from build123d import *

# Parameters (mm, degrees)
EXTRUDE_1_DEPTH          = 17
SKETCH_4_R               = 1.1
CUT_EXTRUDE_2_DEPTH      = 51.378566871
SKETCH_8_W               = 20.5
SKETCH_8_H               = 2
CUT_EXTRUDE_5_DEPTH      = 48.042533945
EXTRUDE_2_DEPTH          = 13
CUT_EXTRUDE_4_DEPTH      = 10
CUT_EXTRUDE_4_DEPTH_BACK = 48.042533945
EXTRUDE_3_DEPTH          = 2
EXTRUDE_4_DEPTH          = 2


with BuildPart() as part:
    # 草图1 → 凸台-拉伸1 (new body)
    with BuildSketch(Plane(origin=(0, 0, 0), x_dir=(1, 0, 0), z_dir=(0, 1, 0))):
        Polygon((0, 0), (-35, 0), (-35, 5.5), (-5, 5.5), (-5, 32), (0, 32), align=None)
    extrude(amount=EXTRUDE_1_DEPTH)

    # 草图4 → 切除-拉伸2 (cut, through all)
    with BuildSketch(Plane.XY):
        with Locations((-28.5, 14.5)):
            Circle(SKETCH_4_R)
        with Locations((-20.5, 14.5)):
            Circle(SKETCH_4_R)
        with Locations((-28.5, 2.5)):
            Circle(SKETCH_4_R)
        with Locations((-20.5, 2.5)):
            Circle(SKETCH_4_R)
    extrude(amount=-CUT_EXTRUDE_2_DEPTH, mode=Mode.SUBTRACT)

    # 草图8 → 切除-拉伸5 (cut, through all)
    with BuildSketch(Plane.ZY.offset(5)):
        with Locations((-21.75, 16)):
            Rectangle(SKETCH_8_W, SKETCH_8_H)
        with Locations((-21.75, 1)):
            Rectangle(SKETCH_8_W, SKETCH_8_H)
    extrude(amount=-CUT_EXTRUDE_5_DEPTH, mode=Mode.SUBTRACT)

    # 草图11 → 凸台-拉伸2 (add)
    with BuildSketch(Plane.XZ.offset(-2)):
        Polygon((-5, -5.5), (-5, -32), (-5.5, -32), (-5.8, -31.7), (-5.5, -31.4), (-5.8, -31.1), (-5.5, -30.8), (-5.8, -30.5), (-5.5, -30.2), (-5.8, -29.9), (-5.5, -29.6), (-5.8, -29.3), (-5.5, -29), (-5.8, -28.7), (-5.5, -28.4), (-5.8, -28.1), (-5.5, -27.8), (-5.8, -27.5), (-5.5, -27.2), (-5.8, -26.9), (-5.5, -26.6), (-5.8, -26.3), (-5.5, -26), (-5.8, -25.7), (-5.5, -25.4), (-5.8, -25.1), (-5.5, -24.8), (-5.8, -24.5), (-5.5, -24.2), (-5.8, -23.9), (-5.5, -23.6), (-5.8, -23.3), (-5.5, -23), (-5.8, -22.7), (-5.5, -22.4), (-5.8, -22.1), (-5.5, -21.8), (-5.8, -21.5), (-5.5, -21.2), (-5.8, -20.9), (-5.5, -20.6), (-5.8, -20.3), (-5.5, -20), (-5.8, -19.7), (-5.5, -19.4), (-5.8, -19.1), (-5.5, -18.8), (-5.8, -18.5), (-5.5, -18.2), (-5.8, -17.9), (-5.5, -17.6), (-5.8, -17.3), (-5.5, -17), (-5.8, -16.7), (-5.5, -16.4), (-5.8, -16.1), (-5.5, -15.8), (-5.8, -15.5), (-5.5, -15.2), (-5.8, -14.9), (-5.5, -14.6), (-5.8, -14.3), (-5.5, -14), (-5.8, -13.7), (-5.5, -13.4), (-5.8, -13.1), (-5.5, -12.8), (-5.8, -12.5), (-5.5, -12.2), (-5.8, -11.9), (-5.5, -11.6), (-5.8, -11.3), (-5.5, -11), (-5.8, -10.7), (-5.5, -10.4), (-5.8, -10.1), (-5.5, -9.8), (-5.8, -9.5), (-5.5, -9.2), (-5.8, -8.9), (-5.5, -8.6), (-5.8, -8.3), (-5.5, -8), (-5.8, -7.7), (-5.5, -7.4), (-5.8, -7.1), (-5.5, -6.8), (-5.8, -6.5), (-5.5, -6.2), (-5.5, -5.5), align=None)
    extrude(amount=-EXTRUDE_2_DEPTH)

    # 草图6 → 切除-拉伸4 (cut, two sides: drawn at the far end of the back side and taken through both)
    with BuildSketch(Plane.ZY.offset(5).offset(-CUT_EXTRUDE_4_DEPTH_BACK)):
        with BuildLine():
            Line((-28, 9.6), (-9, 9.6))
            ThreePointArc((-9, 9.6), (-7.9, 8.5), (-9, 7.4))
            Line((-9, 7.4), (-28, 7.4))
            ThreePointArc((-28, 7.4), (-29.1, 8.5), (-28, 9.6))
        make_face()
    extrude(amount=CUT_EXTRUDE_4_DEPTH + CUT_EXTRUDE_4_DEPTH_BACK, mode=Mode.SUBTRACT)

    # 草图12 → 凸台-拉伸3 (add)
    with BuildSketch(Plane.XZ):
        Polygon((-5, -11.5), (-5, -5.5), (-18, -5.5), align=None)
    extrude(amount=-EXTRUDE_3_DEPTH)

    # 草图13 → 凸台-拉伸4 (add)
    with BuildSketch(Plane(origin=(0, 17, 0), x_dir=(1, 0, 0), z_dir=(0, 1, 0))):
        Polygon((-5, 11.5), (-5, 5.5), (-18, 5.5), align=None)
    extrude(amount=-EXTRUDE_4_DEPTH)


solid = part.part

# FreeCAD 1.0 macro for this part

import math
import FreeCAD as App
import Part
import Sketcher
from FreeCAD import Vector


def add_polygon(sketch, points):
    """Adds a closed chain of lines whose ends are joined by coincident constraints."""
    first, n = sketch.GeometryCount, len(points)
    for a, b in zip(points, points[1:] + points[:1]):
        sketch.addGeometry(Part.LineSegment(App.Vector(*a, 0), App.Vector(*b, 0)), False)
    for i in range(n):
        sketch.addConstraint(Sketcher.Constraint("Coincident", first + i, 2, first + (i + 1) % n, 1))

doc = App.newDocument("Part")
params = doc.addObject("Spreadsheet::Sheet", "Params")
for row, (alias, value) in enumerate([
    ("sketch1_width", "35 mm"),
    ("sketch1_width2", "5 mm"),
    ("sketch1_height", "32 mm"),
    ("sketch1_height2", "26.5 mm"),
    ("pad1_length", "17 mm"),
    ("sketch2_diameter", "2.2 mm"),
    ("sketch3_width", "2 mm"),
    ("sketch3_height", "20.5 mm"),
    ("sketch4_width", "0.5 mm"),
    ("sketch4_height", "26.5 mm"),
    ("sketch4_height2", "0.7 mm"),
    ("pad2_length", "13 mm"),
    ("sketch5_radius", "1.1 mm"),
    ("sketch5_height", "19 mm"),
    ("sketch6_width", "13 mm"),
    ("sketch6_height", "6 mm"),
    ("pad3_length", "2 mm"),
    ("sketch7_width", "13 mm"),
    ("sketch7_height", "6 mm"),
    ("pad4_length", "2 mm"),
], start=1):
    params.set(f"A{row}", alias)
    params.set(f"B{row}", "=" + value)
    params.setAlias(f"B{row}", alias)

body = doc.addObject("PartDesign::Body", "Body")

# Sketch on XZ plane
sketch1 = doc.addObject("Sketcher::SketchObject", "Sketch")
body.addObject(sketch1)
sketch1.AttachmentSupport = (doc.XZ_Plane, [""])
sketch1.MapMode = "FlatFace"
add_polygon(sketch1, [(-35, 0), (0, 0), (0, -32), (-5, -32), (-5, -6), (-35, -6)])  # lines 0-5
sketch1.addConstraint([
    Sketcher.Constraint("Horizontal", 0),
    Sketcher.Constraint("Vertical", 1),
    Sketcher.Constraint("Horizontal", 2),
    Sketcher.Constraint("Vertical", 3),
    Sketcher.Constraint("Horizontal", 4),
    Sketcher.Constraint("Vertical", 5),
    Sketcher.Constraint("Coincident", 0, 2, -1, 1),
    Sketcher.Constraint("DistanceX", 0, 1, 0, 2, 35.0),
    Sketcher.Constraint("DistanceX", 2, 2, 2, 1, 5.0),
    Sketcher.Constraint("DistanceY", 1, 2, 1, 1, 32.0),
    Sketcher.Constraint("DistanceY", 3, 1, 3, 2, 26.5),
])
sketch1.setExpression("Constraints[13]", "Params.sketch1_width")
sketch1.setExpression("Constraints[14]", "Params.sketch1_width2")
sketch1.setExpression("Constraints[15]", "Params.sketch1_height")
sketch1.setExpression("Constraints[16]", "Params.sketch1_height2")
pad1 = doc.addObject("PartDesign::Pad", "Pad")
body.addObject(pad1)
pad1.Profile = sketch1
pad1.setExpression("Length", "Params.pad1_length")
pad1.Reversed = True

# Sketch on XY plane
sketch2 = doc.addObject("Sketcher::SketchObject", "Sketch001")
body.addObject(sketch2)
sketch2.AttachmentSupport = (doc.XY_Plane, [""])
sketch2.MapMode = "FlatFace"
sketch2.addGeometry([
    Part.Circle(Vector(-28.5, 14.5, 0), Vector(0, 0, 1), 1.1),
    Part.Circle(Vector(-20.5, 14.5, 0), Vector(0, 0, 1), 1.1),
    Part.Circle(Vector(-28.5, 2.5, 0), Vector(0, 0, 1), 1.1),
    Part.Circle(Vector(-20.5, 2.5, 0), Vector(0, 0, 1), 1.1),
], False)
sketch2.addConstraint([
    Sketcher.Constraint("Equal", 0, 1),
    Sketcher.Constraint("Equal", 1, 2),
    Sketcher.Constraint("Equal", 2, 3),
    Sketcher.Constraint("Horizontal", 0, 3, 1, 3),
    Sketcher.Constraint("Horizontal", 2, 3, 3, 3),
    Sketcher.Constraint("Vertical", 0, 3, 2, 3),
    Sketcher.Constraint("Vertical", 1, 3, 3, 3),
    Sketcher.Constraint("Diameter", 0, 2.2),
    Sketcher.Constraint("DistanceX", 0, 3, 1, 3, 8.0),
    Sketcher.Constraint("DistanceY", 2, 3, 0, 3, 12.0),
    Sketcher.Constraint("DistanceX", 0, 3, -1, 1, 28.5),
    Sketcher.Constraint("DistanceY", -1, 1, 0, 3, 14.5),
])
sketch2.setExpression("Constraints[7]", "Params.sketch2_diameter")
pocket1 = doc.addObject("PartDesign::Pocket", "Pocket")
body.addObject(pocket1)
pocket1.Profile = sketch2
pocket1.Type = "ThroughAll"

# Sketch on YZ plane
sketch3 = doc.addObject("Sketcher::SketchObject", "Sketch002")
body.addObject(sketch3)
sketch3.AttachmentSupport = (doc.YZ_Plane, [""])
sketch3.MapMode = "FlatFace"
sketch3.AttachmentOffset = App.Placement(Vector(0, 0, -5), App.Rotation())
add_polygon(sketch3, [(17, -32), (15, -32), (15, -11.5), (17, -11.5)])  # lines 0-3
add_polygon(sketch3, [(2, -32), (0, -32), (0, -11.5), (2, -11.5)])  # lines 4-7
sketch3.addConstraint([
    Sketcher.Constraint("Horizontal", 0),
    Sketcher.Constraint("Vertical", 1),
    Sketcher.Constraint("Horizontal", 2),
    Sketcher.Constraint("Vertical", 3),
    Sketcher.Constraint("Horizontal", 4),
    Sketcher.Constraint("Vertical", 5),
    Sketcher.Constraint("Horizontal", 6),
    Sketcher.Constraint("Vertical", 7),
    Sketcher.Constraint("PointOnObject", 4, 2, -2),
    Sketcher.Constraint("Horizontal", 3, 2, 4, 2),
    Sketcher.Constraint("Horizontal", 2, 2, 5, 2),
    Sketcher.Constraint("Equal", 2, 4),
    Sketcher.Constraint("DistanceX", 0, 2, 0, 1, 2.0),
    Sketcher.Constraint("DistanceY", 1, 1, 1, 2, 20.5),
    Sketcher.Constraint("DistanceX", -1, 1, 0, 2, 15.0),
    Sketcher.Constraint("DistanceY", 0, 2, -1, 1, 32.0),
])
sketch3.setExpression("Constraints[20]", "Params.sketch3_width")
sketch3.setExpression("Constraints[21]", "Params.sketch3_height")
pocket2 = doc.addObject("PartDesign::Pocket", "Pocket001")
body.addObject(pocket2)
pocket2.Profile = sketch3
pocket2.Type = "ThroughAll"
pocket2.Reversed = True

# Sketch on XZ plane
sketch4 = doc.addObject("Sketcher::SketchObject", "Sketch003")
body.addObject(sketch4)
sketch4.AttachmentSupport = (doc.XZ_Plane, [""])
sketch4.MapMode = "FlatFace"
sketch4.AttachmentOffset = App.Placement(Vector(0, 0, -2), App.Rotation())
add_polygon(sketch4, [(-5, -32), (-5, -5.5), (-5.5, -5.5), (-5.5, -6.2), (-5.8, -6.5), (-5.5, -6.8), (-5.8, -7.1), (-5.5, -7.4), (-5.8, -7.7), (-5.5, -8), (-5.8, -8.3), (-5.5, -8.6), (-5.8, -8.9), (-5.5, -9.2), (-5.8, -9.5), (-5.5, -9.8), (-5.8, -10.1), (-5.5, -10.4), (-5.8, -10.7), (-5.5, -11), (-5.8, -11.3), (-5.5, -11.6), (-5.8, -11.9), (-5.5, -12.2), (-5.8, -12.5), (-5.5, -12.8), (-5.8, -13.1), (-5.5, -13.4), (-5.8, -13.7), (-5.5, -14), (-5.8, -14.3), (-5.5, -14.6), (-5.8, -14.9), (-5.5, -15.2), (-5.8, -15.5), (-5.5, -15.8), (-5.8, -16.1), (-5.5, -16.4), (-5.8, -16.7), (-5.5, -17), (-5.8, -17.3), (-5.5, -17.6), (-5.8, -17.9), (-5.5, -18.2), (-5.8, -18.5), (-5.5, -18.8), (-5.8, -19.1), (-5.5, -19.4), (-5.8, -19.7), (-5.5, -20), (-5.8, -20.3), (-5.5, -20.6), (-5.8, -20.9), (-5.5, -21.2), (-5.8, -21.5), (-5.5, -21.8), (-5.8, -22.1), (-5.5, -22.4), (-5.8, -22.7), (-5.5, -23), (-5.8, -23.3), (-5.5, -23.6), (-5.8, -23.9), (-5.5, -24.2), (-5.8, -24.5), (-5.5, -24.8), (-5.8, -25.1), (-5.5, -25.4), (-5.8, -25.7), (-5.5, -26), (-5.8, -26.3), (-5.5, -26.6), (-5.8, -26.9), (-5.5, -27.2), (-5.8, -27.5), (-5.5, -27.8), (-5.8, -28.1), (-5.5, -28.4), (-5.8, -28.7), (-5.5, -29), (-5.8, -29.3), (-5.5, -29.6), (-5.8, -29.9), (-5.5, -30.2), (-5.8, -30.5), (-5.5, -30.8), (-5.8, -31.1), (-5.5, -31.4), (-5.8, -31.7), (-5.5, -32)])  # lines 0-89
sketch4.addConstraint([
    Sketcher.Constraint("Vertical", 0),
    Sketcher.Constraint("Horizontal", 1),
    Sketcher.Constraint("Vertical", 2),
    Sketcher.Constraint("Horizontal", 89),
    Sketcher.Constraint("Perpendicular", 3, 4),
    Sketcher.Constraint("Perpendicular", 4, 5),
    Sketcher.Constraint("Perpendicular", 5, 6),
    Sketcher.Constraint("Perpendicular", 6, 7),
    Sketcher.Constraint("Perpendicular", 7, 8),
    Sketcher.Constraint("Perpendicular", 8, 9),
    Sketcher.Constraint("Perpendicular", 9, 10),
    Sketcher.Constraint("Perpendicular", 10, 11),
    Sketcher.Constraint("Perpendicular", 11, 12),
    Sketcher.Constraint("Perpendicular", 12, 13),
    Sketcher.Constraint("Perpendicular", 13, 14),
    Sketcher.Constraint("Perpendicular", 14, 15),
    Sketcher.Constraint("Perpendicular", 15, 16),
    Sketcher.Constraint("Perpendicular", 16, 17),
    Sketcher.Constraint("Perpendicular", 17, 18),
    Sketcher.Constraint("Perpendicular", 18, 19),
    Sketcher.Constraint("Perpendicular", 19, 20),
    Sketcher.Constraint("Perpendicular", 20, 21),
    Sketcher.Constraint("Perpendicular", 21, 22),
    Sketcher.Constraint("Perpendicular", 22, 23),
    Sketcher.Constraint("Perpendicular", 23, 24),
    Sketcher.Constraint("Perpendicular", 24, 25),
    Sketcher.Constraint("Perpendicular", 25, 26),
    Sketcher.Constraint("Perpendicular", 26, 27),
    Sketcher.Constraint("Perpendicular", 27, 28),
    Sketcher.Constraint("Perpendicular", 28, 29),
    Sketcher.Constraint("Perpendicular", 29, 30),
    Sketcher.Constraint("Perpendicular", 30, 31),
    Sketcher.Constraint("Perpendicular", 31, 32),
    Sketcher.Constraint("Perpendicular", 32, 33),
    Sketcher.Constraint("Perpendicular", 33, 34),
    Sketcher.Constraint("Perpendicular", 34, 35),
    Sketcher.Constraint("Perpendicular", 35, 36),
    Sketcher.Constraint("Perpendicular", 36, 37),
    Sketcher.Constraint("Perpendicular", 37, 38),
    Sketcher.Constraint("Perpendicular", 38, 39),
    Sketcher.Constraint("Perpendicular", 39, 40),
    Sketcher.Constraint("Perpendicular", 40, 41),
    Sketcher.Constraint("Perpendicular", 41, 42),
    Sketcher.Constraint("Perpendicular", 42, 43),
    Sketcher.Constraint("Perpendicular", 43, 44),
    Sketcher.Constraint("Perpendicular", 44, 45),
    Sketcher.Constraint("Perpendicular", 45, 46),
    Sketcher.Constraint("Perpendicular", 46, 47),
    Sketcher.Constraint("Perpendicular", 47, 48),
    Sketcher.Constraint("Perpendicular", 48, 49),
    Sketcher.Constraint("Perpendicular", 49, 50),
    Sketcher.Constraint("Perpendicular", 50, 51),
    Sketcher.Constraint("Perpendicular", 51, 52),
    Sketcher.Constraint("Perpendicular", 52, 53),
    Sketcher.Constraint("Perpendicular", 53, 54),
    Sketcher.Constraint("Perpendicular", 54, 55),
    Sketcher.Constraint("Perpendicular", 55, 56),
    Sketcher.Constraint("Perpendicular", 56, 57),
    Sketcher.Constraint("Perpendicular", 57, 58),
    Sketcher.Constraint("Perpendicular", 58, 59),
    Sketcher.Constraint("Perpendicular", 59, 60),
    Sketcher.Constraint("Perpendicular", 60, 61),
    Sketcher.Constraint("Perpendicular", 61, 62),
    Sketcher.Constraint("Perpendicular", 62, 63),
    Sketcher.Constraint("Perpendicular", 63, 64),
    Sketcher.Constraint("Perpendicular", 64, 65),
    Sketcher.Constraint("Perpendicular", 65, 66),
    Sketcher.Constraint("Perpendicular", 66, 67),
    Sketcher.Constraint("Perpendicular", 67, 68),
    Sketcher.Constraint("Perpendicular", 68, 69),
    Sketcher.Constraint("Perpendicular", 69, 70),
    Sketcher.Constraint("Perpendicular", 70, 71),
    Sketcher.Constraint("Perpendicular", 71, 72),
    Sketcher.Constraint("Perpendicular", 72, 73),
    Sketcher.Constraint("Perpendicular", 73, 74),
    Sketcher.Constraint("Perpendicular", 74, 75),
    Sketcher.Constraint("Perpendicular", 75, 76),
    Sketcher.Constraint("Perpendicular", 76, 77),
    Sketcher.Constraint("Perpendicular", 77, 78),
    Sketcher.Constraint("Perpendicular", 78, 79),
    Sketcher.Constraint("Perpendicular", 79, 80),
    Sketcher.Constraint("Perpendicular", 80, 81),
    Sketcher.Constraint("Perpendicular", 81, 82),
    Sketcher.Constraint("Perpendicular", 82, 83),
    Sketcher.Constraint("Perpendicular", 83, 84),
    Sketcher.Constraint("Perpendicular", 84, 85),
    Sketcher.Constraint("Perpendicular", 85, 86),
    Sketcher.Constraint("Perpendicular", 86, 87),
    Sketcher.Constraint("Perpendicular", 87, 88),
    Sketcher.Constraint("Vertical", 2, 2, 4, 2),
    Sketcher.Constraint("Vertical", 3, 2, 5, 2),
    Sketcher.Constraint("Vertical", 4, 2, 6, 2),
    Sketcher.Constraint("Vertical", 5, 2, 7, 2),
    Sketcher.Constraint("Vertical", 6, 2, 8, 2),
    Sketcher.Constraint("Vertical", 7, 2, 9, 2),
    Sketcher.Constraint("Vertical", 8, 2, 10, 2),
    Sketcher.Constraint("Vertical", 9, 2, 11, 2),
    Sketcher.Constraint("Vertical", 10, 2, 12, 2),
    Sketcher.Constraint("Vertical", 11, 2, 13, 2),
    Sketcher.Constraint("Vertical", 12, 2, 14, 2),
    Sketcher.Constraint("Vertical", 13, 2, 15, 2),
    Sketcher.Constraint("Vertical", 14, 2, 16, 2),
    Sketcher.Constraint("Vertical", 15, 2, 17, 2),
    Sketcher.Constraint("Vertical", 16, 2, 18, 2),
    Sketcher.Constraint("Vertical", 17, 2, 19, 2),
    Sketcher.Constraint("Vertical", 18, 2, 20, 2),
    Sketcher.Constraint("Vertical", 19, 2, 21, 2),
    Sketcher.Constraint("Vertical", 20, 2, 22, 2),
    Sketcher.Constraint("Vertical", 21, 2, 23, 2),
    Sketcher.Constraint("Vertical", 22, 2, 24, 2),
    Sketcher.Constraint("Vertical", 23, 2, 25, 2),
    Sketcher.Constraint("Vertical", 24, 2, 26, 2),
    Sketcher.Constraint("Vertical", 25, 2, 27, 2),
    Sketcher.Constraint("Vertical", 26, 2, 28, 2),
    Sketcher.Constraint("Vertical", 27, 2, 29, 2),
    Sketcher.Constraint("Vertical", 28, 2, 30, 2),
    Sketcher.Constraint("Vertical", 29, 2, 31, 2),
    Sketcher.Constraint("Vertical", 30, 2, 32, 2),
    Sketcher.Constraint("Vertical", 31, 2, 33, 2),
    Sketcher.Constraint("Vertical", 32, 2, 34, 2),
    Sketcher.Constraint("Vertical", 33, 2, 35, 2),
    Sketcher.Constraint("Vertical", 34, 2, 36, 2),
    Sketcher.Constraint("Vertical", 35, 2, 37, 2),
    Sketcher.Constraint("Vertical", 36, 2, 38, 2),
    Sketcher.Constraint("Vertical", 37, 2, 39, 2),
    Sketcher.Constraint("Vertical", 38, 2, 40, 2),
    Sketcher.Constraint("Vertical", 39, 2, 41, 2),
    Sketcher.Constraint("Vertical", 40, 2, 42, 2),
    Sketcher.Constraint("Vertical", 41, 2, 43, 2),
    Sketcher.Constraint("Vertical", 42, 2, 44, 2),
    Sketcher.Constraint("Vertical", 43, 2, 45, 2),
    Sketcher.Constraint("Vertical", 44, 2, 46, 2),
    Sketcher.Constraint("Vertical", 45, 2, 47, 2),
    Sketcher.Constraint("Vertical", 46, 2, 48, 2),
    Sketcher.Constraint("Vertical", 47, 2, 49, 2),
    Sketcher.Constraint("Vertical", 48, 2, 50, 2),
    Sketcher.Constraint("Vertical", 49, 2, 51, 2),
    Sketcher.Constraint("Vertical", 50, 2, 52, 2),
    Sketcher.Constraint("Vertical", 51, 2, 53, 2),
    Sketcher.Constraint("Vertical", 52, 2, 54, 2),
    Sketcher.Constraint("Vertical", 53, 2, 55, 2),
    Sketcher.Constraint("Vertical", 54, 2, 56, 2),
    Sketcher.Constraint("Vertical", 55, 2, 57, 2),
    Sketcher.Constraint("Vertical", 56, 2, 58, 2),
    Sketcher.Constraint("Vertical", 57, 2, 59, 2),
    Sketcher.Constraint("Vertical", 58, 2, 60, 2),
    Sketcher.Constraint("Vertical", 59, 2, 61, 2),
    Sketcher.Constraint("Vertical", 60, 2, 62, 2),
    Sketcher.Constraint("Vertical", 61, 2, 63, 2),
    Sketcher.Constraint("Vertical", 62, 2, 64, 2),
    Sketcher.Constraint("Vertical", 63, 2, 65, 2),
    Sketcher.Constraint("Vertical", 64, 2, 66, 2),
    Sketcher.Constraint("Vertical", 65, 2, 67, 2),
    Sketcher.Constraint("Vertical", 66, 2, 68, 2),
    Sketcher.Constraint("Vertical", 67, 2, 69, 2),
    Sketcher.Constraint("Vertical", 68, 2, 70, 2),
    Sketcher.Constraint("Vertical", 69, 2, 71, 2),
    Sketcher.Constraint("Vertical", 70, 2, 72, 2),
    Sketcher.Constraint("Vertical", 71, 2, 73, 2),
    Sketcher.Constraint("Vertical", 72, 2, 74, 2),
    Sketcher.Constraint("Vertical", 73, 2, 75, 2),
    Sketcher.Constraint("Vertical", 74, 2, 76, 2),
    Sketcher.Constraint("Vertical", 75, 2, 77, 2),
    Sketcher.Constraint("Vertical", 76, 2, 78, 2),
    Sketcher.Constraint("Vertical", 77, 2, 79, 2),
    Sketcher.Constraint("Vertical", 78, 2, 80, 2),
    Sketcher.Constraint("Vertical", 79, 2, 81, 2),
    Sketcher.Constraint("Vertical", 80, 2, 82, 2),
    Sketcher.Constraint("Vertical", 81, 2, 83, 2),
    Sketcher.Constraint("Vertical", 82, 2, 84, 2),
    Sketcher.Constraint("Vertical", 83, 2, 85, 2),
    Sketcher.Constraint("Vertical", 84, 2, 86, 2),
    Sketcher.Constraint("Vertical", 85, 2, 87, 2),
    Sketcher.Constraint("Vertical", 86, 2, 88, 2),
    Sketcher.Constraint("Equal", 3, 4),
    Sketcher.Constraint("DistanceX", 1, 2, 1, 1, 0.5),
    Sketcher.Constraint("DistanceY", 0, 1, 0, 2, 26.5),
    Sketcher.Constraint("DistanceY", 2, 2, 2, 1, 0.7),
    Sketcher.Constraint("DistanceX", 0, 2, -1, 1, 5.0),
    Sketcher.Constraint("DistanceY", 8, 2, -1, 1, 8.0),
])
sketch4.setExpression("Constraints[265]", "Params.sketch4_width")
sketch4.setExpression("Constraints[266]", "Params.sketch4_height")
sketch4.setExpression("Constraints[267]", "Params.sketch4_height2")
pad2 = doc.addObject("PartDesign::Pad", "Pad001")
body.addObject(pad2)
pad2.Profile = sketch4
pad2.setExpression("Length", "Params.pad2_length")
pad2.Reversed = True

# Sketch on YZ plane
sketch5 = doc.addObject("Sketcher::SketchObject", "Sketch004")
body.addObject(sketch5)
sketch5.AttachmentSupport = (doc.YZ_Plane, [""])
sketch5.MapMode = "FlatFace"
sketch5.AttachmentOffset = App.Placement(Vector(0, 0, -5), App.Rotation())
sketch5.addGeometry([
    Part.LineSegment(Vector(9.6, -9, 0), Vector(9.6, -28, 0)),
    Part.ArcOfCircle(Part.Circle(Vector(8.5, -28, 0), Vector(0, 0, 1), 1.1), math.radians(180), math.radians(360)),
    Part.LineSegment(Vector(7.4, -28, 0), Vector(7.4, -9, 0)),
    Part.ArcOfCircle(Part.Circle(Vector(8.5, -9, 0), Vector(0, 0, 1), 1.1), math.radians(0), math.radians(180)),
], False)
sketch5.addConstraint([
    Sketcher.Constraint("Tangent", 0, 2, 1, 2),
    Sketcher.Constraint("Tangent", 1, 1, 2, 1),
    Sketcher.Constraint("Tangent", 2, 2, 3, 2),
    Sketcher.Constraint("Tangent", 3, 1, 0, 1),
    Sketcher.Constraint("Vertical", 0),
    Sketcher.Constraint("Vertical", 2),
    Sketcher.Constraint("Radius", 1, 1.1),
    Sketcher.Constraint("DistanceY", 0, 2, 0, 1, 19.0),
    Sketcher.Constraint("DistanceY", 1, 3, -1, 1, 28.0),
    Sketcher.Constraint("DistanceX", -1, 1, 1, 3, 8.5),
])
sketch5.setExpression("Constraints[6]", "Params.sketch5_radius")
sketch5.setExpression("Constraints[7]", "Params.sketch5_height")
pocket3 = doc.addObject("PartDesign::Pocket", "Pocket002")
body.addObject(pocket3)
pocket3.Profile = sketch5
pocket3.Type = "ThroughAll"
pocket3.Midplane = True

# Sketch on XZ plane
sketch6 = doc.addObject("Sketcher::SketchObject", "Sketch005")
body.addObject(sketch6)
sketch6.AttachmentSupport = (doc.XZ_Plane, [""])
sketch6.MapMode = "FlatFace"
add_polygon(sketch6, [(-5, -12), (-5, -6), (-18, -6)])  # lines 0-2
sketch6.addConstraint([
    Sketcher.Constraint("Vertical", 0),
    Sketcher.Constraint("Horizontal", 1),
    Sketcher.Constraint("DistanceX", 1, 2, 1, 1, 13.0),
    Sketcher.Constraint("DistanceY", 0, 1, 0, 2, 6.0),
    Sketcher.Constraint("DistanceX", 0, 2, -1, 1, 5.0),
    Sketcher.Constraint("DistanceY", 0, 2, -1, 1, 5.5),
])
sketch6.setExpression("Constraints[5]", "Params.sketch6_width")
sketch6.setExpression("Constraints[6]", "Params.sketch6_height")
pad3 = doc.addObject("PartDesign::Pad", "Pad002")
body.addObject(pad3)
pad3.Profile = sketch6
pad3.setExpression("Length", "Params.pad3_length")
pad3.Reversed = True

# Sketch on XZ plane
sketch7 = doc.addObject("Sketcher::SketchObject", "Sketch006")
body.addObject(sketch7)
sketch7.AttachmentSupport = (doc.XZ_Plane, [""])
sketch7.MapMode = "FlatFace"
sketch7.AttachmentOffset = App.Placement(Vector(0, 0, -17), App.Rotation())
add_polygon(sketch7, [(-5, -6), (-5, -12), (-18, -6)])  # lines 0-2
sketch7.addConstraint([
    Sketcher.Constraint("Vertical", 0),
    Sketcher.Constraint("Horizontal", 2),
    Sketcher.Constraint("DistanceX", 2, 1, 2, 2, 13.0),
    Sketcher.Constraint("DistanceY", 0, 2, 0, 1, 6.0),
    Sketcher.Constraint("DistanceX", 0, 2, -1, 1, 5.0),
    Sketcher.Constraint("DistanceY", 0, 2, -1, 1, 11.5),
])
sketch7.setExpression("Constraints[5]", "Params.sketch7_width")
sketch7.setExpression("Constraints[6]", "Params.sketch7_height")
pad4 = doc.addObject("PartDesign::Pad", "Pad003")
body.addObject(pad4)
pad4.Profile = sketch7
pad4.setExpression("Length", "Params.pad4_length")

doc.recompute()
